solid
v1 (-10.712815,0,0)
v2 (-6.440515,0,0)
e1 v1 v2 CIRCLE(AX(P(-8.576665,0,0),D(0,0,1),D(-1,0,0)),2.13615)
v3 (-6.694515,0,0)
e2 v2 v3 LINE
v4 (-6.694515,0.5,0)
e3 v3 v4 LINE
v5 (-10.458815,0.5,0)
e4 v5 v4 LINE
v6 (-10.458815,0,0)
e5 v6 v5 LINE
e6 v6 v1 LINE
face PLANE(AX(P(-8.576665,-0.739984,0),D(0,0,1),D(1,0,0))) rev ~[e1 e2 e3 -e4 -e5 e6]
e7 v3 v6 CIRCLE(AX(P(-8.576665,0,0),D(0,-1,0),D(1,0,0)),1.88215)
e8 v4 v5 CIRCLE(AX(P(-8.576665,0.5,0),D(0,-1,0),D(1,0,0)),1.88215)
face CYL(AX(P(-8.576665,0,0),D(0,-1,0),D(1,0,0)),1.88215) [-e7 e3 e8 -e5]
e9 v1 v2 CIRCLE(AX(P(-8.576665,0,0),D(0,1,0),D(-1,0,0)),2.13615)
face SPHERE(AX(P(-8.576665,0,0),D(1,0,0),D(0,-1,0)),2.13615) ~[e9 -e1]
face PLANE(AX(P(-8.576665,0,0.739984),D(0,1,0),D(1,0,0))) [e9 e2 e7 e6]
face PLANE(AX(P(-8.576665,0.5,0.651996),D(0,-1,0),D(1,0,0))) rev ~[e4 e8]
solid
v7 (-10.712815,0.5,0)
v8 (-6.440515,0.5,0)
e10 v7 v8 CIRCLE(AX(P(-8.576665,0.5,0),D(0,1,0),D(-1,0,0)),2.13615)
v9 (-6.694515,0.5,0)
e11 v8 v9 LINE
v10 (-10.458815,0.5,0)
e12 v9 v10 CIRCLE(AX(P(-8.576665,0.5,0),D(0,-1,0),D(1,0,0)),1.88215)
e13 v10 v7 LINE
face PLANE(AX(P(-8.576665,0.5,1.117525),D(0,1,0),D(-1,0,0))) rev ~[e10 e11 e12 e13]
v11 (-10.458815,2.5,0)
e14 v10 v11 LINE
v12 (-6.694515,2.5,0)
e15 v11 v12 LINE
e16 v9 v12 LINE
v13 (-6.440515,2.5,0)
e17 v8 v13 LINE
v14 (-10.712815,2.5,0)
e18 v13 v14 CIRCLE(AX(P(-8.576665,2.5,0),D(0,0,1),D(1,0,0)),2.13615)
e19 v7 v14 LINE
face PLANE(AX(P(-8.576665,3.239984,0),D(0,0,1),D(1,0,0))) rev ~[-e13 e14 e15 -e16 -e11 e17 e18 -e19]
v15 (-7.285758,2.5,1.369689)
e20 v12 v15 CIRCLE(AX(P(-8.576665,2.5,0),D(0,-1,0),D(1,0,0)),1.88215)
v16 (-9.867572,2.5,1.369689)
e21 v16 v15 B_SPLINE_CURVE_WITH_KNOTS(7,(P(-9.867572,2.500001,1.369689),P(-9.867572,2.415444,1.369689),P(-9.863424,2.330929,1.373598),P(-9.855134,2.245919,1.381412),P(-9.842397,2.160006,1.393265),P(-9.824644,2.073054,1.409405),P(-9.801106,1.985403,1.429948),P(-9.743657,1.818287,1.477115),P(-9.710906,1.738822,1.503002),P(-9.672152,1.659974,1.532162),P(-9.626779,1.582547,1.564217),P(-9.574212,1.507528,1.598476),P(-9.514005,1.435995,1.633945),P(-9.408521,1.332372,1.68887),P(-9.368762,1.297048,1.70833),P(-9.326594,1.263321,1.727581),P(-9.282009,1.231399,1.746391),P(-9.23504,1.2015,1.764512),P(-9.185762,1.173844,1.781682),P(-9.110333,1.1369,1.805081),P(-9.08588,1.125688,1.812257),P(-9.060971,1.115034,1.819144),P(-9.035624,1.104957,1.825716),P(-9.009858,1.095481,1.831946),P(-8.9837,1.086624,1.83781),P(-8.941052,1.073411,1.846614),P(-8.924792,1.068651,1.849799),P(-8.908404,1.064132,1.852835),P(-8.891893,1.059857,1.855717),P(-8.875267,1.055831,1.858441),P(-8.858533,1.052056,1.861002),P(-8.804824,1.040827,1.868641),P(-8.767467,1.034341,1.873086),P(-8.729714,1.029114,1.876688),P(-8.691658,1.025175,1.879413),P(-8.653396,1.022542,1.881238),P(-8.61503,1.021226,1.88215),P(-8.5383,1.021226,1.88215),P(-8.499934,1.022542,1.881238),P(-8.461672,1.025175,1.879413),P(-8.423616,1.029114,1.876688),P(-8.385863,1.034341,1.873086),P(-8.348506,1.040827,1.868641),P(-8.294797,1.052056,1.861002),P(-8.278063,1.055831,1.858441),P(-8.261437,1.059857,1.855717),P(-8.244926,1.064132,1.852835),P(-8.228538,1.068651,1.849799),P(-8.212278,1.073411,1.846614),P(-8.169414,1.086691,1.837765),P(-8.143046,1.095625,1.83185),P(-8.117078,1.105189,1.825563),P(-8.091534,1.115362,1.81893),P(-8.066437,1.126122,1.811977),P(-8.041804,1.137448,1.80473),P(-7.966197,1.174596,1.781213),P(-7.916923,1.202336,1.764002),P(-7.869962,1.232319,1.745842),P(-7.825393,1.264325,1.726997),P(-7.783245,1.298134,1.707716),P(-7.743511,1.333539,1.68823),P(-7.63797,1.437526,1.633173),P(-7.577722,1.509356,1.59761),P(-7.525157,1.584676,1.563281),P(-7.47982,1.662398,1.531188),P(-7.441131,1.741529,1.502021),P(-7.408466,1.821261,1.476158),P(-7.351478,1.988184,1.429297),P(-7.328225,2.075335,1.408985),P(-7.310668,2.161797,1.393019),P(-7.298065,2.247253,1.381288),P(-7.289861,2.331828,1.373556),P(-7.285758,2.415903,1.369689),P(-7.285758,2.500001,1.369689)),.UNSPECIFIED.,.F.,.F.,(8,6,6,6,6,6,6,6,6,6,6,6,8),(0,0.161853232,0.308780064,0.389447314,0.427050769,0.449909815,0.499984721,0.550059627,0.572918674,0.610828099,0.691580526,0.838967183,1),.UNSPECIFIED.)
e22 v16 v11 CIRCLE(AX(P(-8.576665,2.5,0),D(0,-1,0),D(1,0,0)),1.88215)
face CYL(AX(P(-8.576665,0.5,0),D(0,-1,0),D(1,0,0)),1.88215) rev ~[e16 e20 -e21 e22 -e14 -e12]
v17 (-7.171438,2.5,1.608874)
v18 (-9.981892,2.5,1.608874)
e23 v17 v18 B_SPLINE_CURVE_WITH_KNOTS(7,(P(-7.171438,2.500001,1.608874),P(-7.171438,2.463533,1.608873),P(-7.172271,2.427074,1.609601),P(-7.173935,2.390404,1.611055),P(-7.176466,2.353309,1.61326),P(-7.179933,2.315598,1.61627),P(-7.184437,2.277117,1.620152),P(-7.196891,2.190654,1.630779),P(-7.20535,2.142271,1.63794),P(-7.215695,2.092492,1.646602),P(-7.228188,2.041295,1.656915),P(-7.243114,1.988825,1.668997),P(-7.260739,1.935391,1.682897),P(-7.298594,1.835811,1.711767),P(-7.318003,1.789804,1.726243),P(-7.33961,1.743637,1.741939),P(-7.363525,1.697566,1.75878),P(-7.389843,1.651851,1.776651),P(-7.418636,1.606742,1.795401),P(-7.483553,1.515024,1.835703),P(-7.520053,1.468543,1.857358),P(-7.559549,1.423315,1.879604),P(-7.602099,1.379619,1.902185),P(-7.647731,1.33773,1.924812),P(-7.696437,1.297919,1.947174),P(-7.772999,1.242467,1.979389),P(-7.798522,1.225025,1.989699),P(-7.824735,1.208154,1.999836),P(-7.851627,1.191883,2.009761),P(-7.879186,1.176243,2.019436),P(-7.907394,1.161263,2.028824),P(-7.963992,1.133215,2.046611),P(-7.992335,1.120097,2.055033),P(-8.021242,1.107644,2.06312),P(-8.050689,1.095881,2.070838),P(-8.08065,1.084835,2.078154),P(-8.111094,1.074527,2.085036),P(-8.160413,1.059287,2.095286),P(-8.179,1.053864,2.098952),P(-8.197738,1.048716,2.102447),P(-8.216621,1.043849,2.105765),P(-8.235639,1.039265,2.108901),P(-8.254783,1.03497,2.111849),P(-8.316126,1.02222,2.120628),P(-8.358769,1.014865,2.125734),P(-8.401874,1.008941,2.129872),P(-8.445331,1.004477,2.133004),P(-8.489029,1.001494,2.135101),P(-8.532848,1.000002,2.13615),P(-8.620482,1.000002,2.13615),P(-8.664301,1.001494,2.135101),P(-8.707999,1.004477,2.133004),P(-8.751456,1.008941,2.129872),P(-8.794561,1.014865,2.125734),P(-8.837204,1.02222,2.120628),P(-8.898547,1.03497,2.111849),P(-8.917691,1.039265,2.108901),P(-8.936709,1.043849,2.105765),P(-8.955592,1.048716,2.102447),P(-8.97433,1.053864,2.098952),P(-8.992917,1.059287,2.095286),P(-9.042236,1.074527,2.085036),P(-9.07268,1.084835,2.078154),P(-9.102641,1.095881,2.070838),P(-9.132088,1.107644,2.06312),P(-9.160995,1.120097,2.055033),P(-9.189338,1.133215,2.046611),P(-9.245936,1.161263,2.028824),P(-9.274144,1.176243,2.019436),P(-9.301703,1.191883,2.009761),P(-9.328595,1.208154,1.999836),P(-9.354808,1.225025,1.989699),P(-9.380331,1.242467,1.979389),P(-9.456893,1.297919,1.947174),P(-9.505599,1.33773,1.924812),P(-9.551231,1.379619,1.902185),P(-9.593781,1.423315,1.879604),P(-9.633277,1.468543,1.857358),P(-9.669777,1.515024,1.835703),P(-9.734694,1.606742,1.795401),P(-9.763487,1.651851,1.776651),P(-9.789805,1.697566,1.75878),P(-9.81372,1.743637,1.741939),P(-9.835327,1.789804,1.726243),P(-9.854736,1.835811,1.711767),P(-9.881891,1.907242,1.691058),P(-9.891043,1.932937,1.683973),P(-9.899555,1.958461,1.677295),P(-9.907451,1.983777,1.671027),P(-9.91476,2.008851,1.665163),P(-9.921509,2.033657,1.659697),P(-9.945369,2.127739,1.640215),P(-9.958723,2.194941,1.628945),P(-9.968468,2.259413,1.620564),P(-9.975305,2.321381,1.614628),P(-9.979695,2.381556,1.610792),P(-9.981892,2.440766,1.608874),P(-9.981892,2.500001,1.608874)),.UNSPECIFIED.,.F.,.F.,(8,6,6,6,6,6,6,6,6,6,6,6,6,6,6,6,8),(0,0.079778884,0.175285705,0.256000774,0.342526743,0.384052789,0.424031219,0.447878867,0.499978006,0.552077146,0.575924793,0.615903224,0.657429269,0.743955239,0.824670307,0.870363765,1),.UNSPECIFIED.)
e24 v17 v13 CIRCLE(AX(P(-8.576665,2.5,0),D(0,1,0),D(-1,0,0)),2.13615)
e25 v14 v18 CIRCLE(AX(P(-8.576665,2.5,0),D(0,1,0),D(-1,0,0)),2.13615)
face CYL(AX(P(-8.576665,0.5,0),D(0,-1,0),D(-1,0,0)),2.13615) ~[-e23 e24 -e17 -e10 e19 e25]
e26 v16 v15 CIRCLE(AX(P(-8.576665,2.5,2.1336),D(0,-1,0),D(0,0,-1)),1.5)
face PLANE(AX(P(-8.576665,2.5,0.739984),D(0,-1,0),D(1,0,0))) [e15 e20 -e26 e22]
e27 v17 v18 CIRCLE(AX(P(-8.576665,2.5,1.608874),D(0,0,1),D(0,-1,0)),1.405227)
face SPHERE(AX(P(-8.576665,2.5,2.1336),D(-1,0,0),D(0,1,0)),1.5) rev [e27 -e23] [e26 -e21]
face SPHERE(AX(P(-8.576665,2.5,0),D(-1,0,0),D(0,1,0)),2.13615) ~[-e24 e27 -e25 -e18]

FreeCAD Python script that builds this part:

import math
import FreeCAD as App
import Part
import Sketcher

V = App.Vector
Q = App.Units.Quantity

doc = App.newDocument("Part")
body = doc.addObject("PartDesign::Body", "Body")

# Sketch on XY plane
sketch1 = body.newObject("Sketcher::SketchObject", "Sketch")
sketch1.AttachmentSupport = (doc.getObject("XY_Plane"), [""])
sketch1.MapMode = "FlatFace"
sketch1.addGeometry(Part.LineSegment(V(-6.440515, 0, 0), V(-10.712815, 0, 0)), False)
sketch1.addGeometry(Part.ArcOfCircle(Part.Circle(V(-8.576665, 0, 0), V(0, 0, 1), 2.13615), math.radians(180), math.radians(360)), False)
sketch1.addConstraint(Sketcher.Constraint("Coincident", 0, 1, 1, 2))
sketch1.addConstraint(Sketcher.Constraint("Coincident", 1, 1, 0, 2))
sketch1.addConstraint(Sketcher.Constraint("Horizontal", 0))
sketch1.addConstraint(Sketcher.Constraint("PointOnObject", 1, 3, -1))
sketch1.addConstraint(Sketcher.Constraint("PointOnObject", 0, 1, -1))
sketch1.addConstraint(Sketcher.Constraint("Radius", 1, Q("2.13615 mm")))
sketch1.addConstraint(Sketcher.Constraint("DistanceX", 1, 3, -1, 1, Q("8.576665 mm")))
revolution = body.newObject("PartDesign::Revolution", "Revolution")
revolution.Profile = sketch1
revolution.ReferenceAxis = (sketch1, ["H_Axis"])
revolution.Angle = 90
revolution.Reversed = True

# Sketch on XZ plane
sketch2 = body.newObject("Sketcher::SketchObject", "Sketch001")
sketch2.AttachmentSupport = (doc.getObject("XZ_Plane"), [""])
sketch2.MapMode = "FlatFace"
sketch2.addGeometry(Part.LineSegment(V(-10.458815, 0, 0), V(-6.694515, 0, 0)), False)
sketch2.addGeometry(Part.ArcOfCircle(Part.Circle(V(-8.576665, 0, 0), V(0, 0, 1), 1.88215), math.radians(0), math.radians(180)), False)
sketch2.addConstraint(Sketcher.Constraint("Coincident", 0, 1, 1, 2))
sketch2.addConstraint(Sketcher.Constraint("Coincident", 1, 1, 0, 2))
sketch2.addConstraint(Sketcher.Constraint("Horizontal", 0))
sketch2.addConstraint(Sketcher.Constraint("PointOnObject", 1, 3, -1))
sketch2.addConstraint(Sketcher.Constraint("PointOnObject", 0, 1, -1))
sketch2.addConstraint(Sketcher.Constraint("Radius", 1, Q("1.88215 mm")))
sketch2.addConstraint(Sketcher.Constraint("DistanceX", 1, 3, -1, 1, Q("8.576665 mm")))
pad1 = body.newObject("PartDesign::Pad", "Pad")
pad1.Profile = sketch2
pad1.Length = 0.5
pad1.Reversed = True
body2 = doc.addObject("PartDesign::Body", "Body001")

# Sketch on XZ plane
sketch3 = body2.newObject("Sketcher::SketchObject", "Sketch002")
sketch3.AttachmentSupport = (doc.getObject("XZ_Plane001"), [""])
sketch3.MapMode = "FlatFace"
sketch3.AttachmentOffset = App.Placement(V(0, 0, -0.5), App.Rotation())
sketch3.addGeometry(Part.LineSegment(V(-10.458815, 0, 0), V(-10.712815, 0, 0)), False)
sketch3.addGeometry(Part.ArcOfCircle(Part.Circle(V(-8.576665, 0, 0), V(0, 0, 1), 2.13615), math.radians(0), math.radians(180)), False)
sketch3.addGeometry(Part.LineSegment(V(-6.440515, 0, 0), V(-6.694515, 0, 0)), False)
sketch3.addGeometry(Part.ArcOfCircle(Part.Circle(V(-8.576665, 0, 0), V(0, 0, 1), 1.88215), math.radians(0), math.radians(180)), False)
sketch3.addConstraint(Sketcher.Constraint("Coincident", 0, 2, 1, 2))
sketch3.addConstraint(Sketcher.Constraint("Coincident", 1, 1, 2, 1))
sketch3.addConstraint(Sketcher.Constraint("Coincident", 2, 2, 3, 1))
sketch3.addConstraint(Sketcher.Constraint("Coincident", 3, 2, 0, 1))
sketch3.addConstraint(Sketcher.Constraint("Horizontal", 0))
sketch3.addConstraint(Sketcher.Constraint("Horizontal", 2))
sketch3.addConstraint(Sketcher.Constraint("Coincident", 3, 3, 1, 3))
sketch3.addConstraint(Sketcher.Constraint("PointOnObject", 1, 3, -1))
sketch3.addConstraint(Sketcher.Constraint("PointOnObject", 0, 2, -1))
sketch3.addConstraint(Sketcher.Constraint("PointOnObject", 1, 1, -1))
sketch3.addConstraint(Sketcher.Constraint("DistanceX", 0, 2, 0, 1, Q("0.254 mm")))
sketch3.addConstraint(Sketcher.Constraint("Radius", 1, Q("2.13615 mm")))
sketch3.addConstraint(Sketcher.Constraint("DistanceX", 1, 3, -1, 1, Q("8.576665 mm")))
pad2 = body2.newObject("PartDesign::Pad", "Pad001")
pad2.Profile = sketch3
pad2.Length = 2
pad2.Reversed = True

# Sketch on XY plane
sketch4 = body2.newObject("Sketcher::SketchObject", "Sketch003")
sketch4.AttachmentSupport = (doc.getObject("XY_Plane001"), [""])
sketch4.MapMode = "FlatFace"
sketch4.addGeometry(Part.LineSegment(V(-10.712815, 2.5, 0), V(-6.440515, 2.5, 0)), False)
sketch4.addGeometry(Part.ArcOfCircle(Part.Circle(V(-8.576665, 2.5, 0), V(0, 0, 1), 2.13615), math.radians(0), math.radians(180)), False)
sketch4.addGeometry(Part.LineSegment(V(-10.712815, 2.5, 0), V(-6.440515, 2.5, 0)), True)  # axis
sketch4.addConstraint(Sketcher.Constraint("Coincident", 0, 1, 1, 2))
sketch4.addConstraint(Sketcher.Constraint("Coincident", 1, 1, 0, 2))
sketch4.addConstraint(Sketcher.Constraint("Horizontal", 0))
sketch4.addConstraint(Sketcher.Constraint("Horizontal", 2))
sketch4.addConstraint(Sketcher.Constraint("Coincident", 2, 1, 0, 1))
sketch4.addConstraint(Sketcher.Constraint("Horizontal", 1, 3, 0, 1))
sketch4.addConstraint(Sketcher.Constraint("Equal", 0, 2))
sketch4.addConstraint(Sketcher.Constraint("DistanceY", -1, 1, 1, 3, Q("2.5 mm")))
sketch4.addConstraint(Sketcher.Constraint("Radius", 1, Q("2.13615 mm")))
sketch4.addConstraint(Sketcher.Constraint("DistanceX", 1, 3, -1, 1, Q("8.576665 mm")))
revolution2 = body2.newObject("PartDesign::Revolution", "Revolution001")
revolution2.Profile = sketch4
revolution2.ReferenceAxis = (sketch4, ["Axis0"])
revolution2.Angle = 90

# Sketch on XY plane
sketch5 = body2.newObject("Sketcher::SketchObject", "Sketch004")
sketch5.AttachmentSupport = (doc.getObject("XY_Plane001"), [""])
sketch5.MapMode = "FlatFace"
sketch5.AttachmentOffset = App.Placement(V(0, 0, 2.1336), App.Rotation())
sketch5.addGeometry(Part.ArcOfCircle(Part.Circle(V(-8.576665, 2.5, 0), V(0, 0, 1), 1.5), math.radians(0), math.radians(180)), False)
sketch5.addGeometry(Part.LineSegment(V(-10.076665, 2.5, 0), V(-7.076665, 2.5, 0)), False)
sketch5.addGeometry(Part.LineSegment(V(-10.076665, 2.5, 0), V(-7.076665, 2.5, 0)), True)  # axis
sketch5.addConstraint(Sketcher.Constraint("Coincident", 0, 1, 1, 2))
sketch5.addConstraint(Sketcher.Constraint("Coincident", 1, 1, 0, 2))
sketch5.addConstraint(Sketcher.Constraint("Horizontal", 1))
sketch5.addConstraint(Sketcher.Constraint("Horizontal", 2))
sketch5.addConstraint(Sketcher.Constraint("Coincident", 2, 1, 1, 1))
sketch5.addConstraint(Sketcher.Constraint("Equal", 1, 2))
sketch5.addConstraint(Sketcher.Constraint("Radius", 0, Q("1.5 mm")))
sketch5.addConstraint(Sketcher.Constraint("DistanceY", -1, 1, 0, 3, Q("2.5 mm")))
sketch5.addConstraint(Sketcher.Constraint("DistanceY", -1, 1, 0, 1, Q("2.5 mm")))
sketch5.addConstraint(Sketcher.Constraint("DistanceX", 0, 3, -1, 1, Q("8.576665 mm")))
groove = body2.newObject("PartDesign::Groove", "Groove")
groove.Profile = sketch5
groove.ReferenceAxis = (sketch5, ["Axis0"])
groove.Angle = 360

doc.recompute()
